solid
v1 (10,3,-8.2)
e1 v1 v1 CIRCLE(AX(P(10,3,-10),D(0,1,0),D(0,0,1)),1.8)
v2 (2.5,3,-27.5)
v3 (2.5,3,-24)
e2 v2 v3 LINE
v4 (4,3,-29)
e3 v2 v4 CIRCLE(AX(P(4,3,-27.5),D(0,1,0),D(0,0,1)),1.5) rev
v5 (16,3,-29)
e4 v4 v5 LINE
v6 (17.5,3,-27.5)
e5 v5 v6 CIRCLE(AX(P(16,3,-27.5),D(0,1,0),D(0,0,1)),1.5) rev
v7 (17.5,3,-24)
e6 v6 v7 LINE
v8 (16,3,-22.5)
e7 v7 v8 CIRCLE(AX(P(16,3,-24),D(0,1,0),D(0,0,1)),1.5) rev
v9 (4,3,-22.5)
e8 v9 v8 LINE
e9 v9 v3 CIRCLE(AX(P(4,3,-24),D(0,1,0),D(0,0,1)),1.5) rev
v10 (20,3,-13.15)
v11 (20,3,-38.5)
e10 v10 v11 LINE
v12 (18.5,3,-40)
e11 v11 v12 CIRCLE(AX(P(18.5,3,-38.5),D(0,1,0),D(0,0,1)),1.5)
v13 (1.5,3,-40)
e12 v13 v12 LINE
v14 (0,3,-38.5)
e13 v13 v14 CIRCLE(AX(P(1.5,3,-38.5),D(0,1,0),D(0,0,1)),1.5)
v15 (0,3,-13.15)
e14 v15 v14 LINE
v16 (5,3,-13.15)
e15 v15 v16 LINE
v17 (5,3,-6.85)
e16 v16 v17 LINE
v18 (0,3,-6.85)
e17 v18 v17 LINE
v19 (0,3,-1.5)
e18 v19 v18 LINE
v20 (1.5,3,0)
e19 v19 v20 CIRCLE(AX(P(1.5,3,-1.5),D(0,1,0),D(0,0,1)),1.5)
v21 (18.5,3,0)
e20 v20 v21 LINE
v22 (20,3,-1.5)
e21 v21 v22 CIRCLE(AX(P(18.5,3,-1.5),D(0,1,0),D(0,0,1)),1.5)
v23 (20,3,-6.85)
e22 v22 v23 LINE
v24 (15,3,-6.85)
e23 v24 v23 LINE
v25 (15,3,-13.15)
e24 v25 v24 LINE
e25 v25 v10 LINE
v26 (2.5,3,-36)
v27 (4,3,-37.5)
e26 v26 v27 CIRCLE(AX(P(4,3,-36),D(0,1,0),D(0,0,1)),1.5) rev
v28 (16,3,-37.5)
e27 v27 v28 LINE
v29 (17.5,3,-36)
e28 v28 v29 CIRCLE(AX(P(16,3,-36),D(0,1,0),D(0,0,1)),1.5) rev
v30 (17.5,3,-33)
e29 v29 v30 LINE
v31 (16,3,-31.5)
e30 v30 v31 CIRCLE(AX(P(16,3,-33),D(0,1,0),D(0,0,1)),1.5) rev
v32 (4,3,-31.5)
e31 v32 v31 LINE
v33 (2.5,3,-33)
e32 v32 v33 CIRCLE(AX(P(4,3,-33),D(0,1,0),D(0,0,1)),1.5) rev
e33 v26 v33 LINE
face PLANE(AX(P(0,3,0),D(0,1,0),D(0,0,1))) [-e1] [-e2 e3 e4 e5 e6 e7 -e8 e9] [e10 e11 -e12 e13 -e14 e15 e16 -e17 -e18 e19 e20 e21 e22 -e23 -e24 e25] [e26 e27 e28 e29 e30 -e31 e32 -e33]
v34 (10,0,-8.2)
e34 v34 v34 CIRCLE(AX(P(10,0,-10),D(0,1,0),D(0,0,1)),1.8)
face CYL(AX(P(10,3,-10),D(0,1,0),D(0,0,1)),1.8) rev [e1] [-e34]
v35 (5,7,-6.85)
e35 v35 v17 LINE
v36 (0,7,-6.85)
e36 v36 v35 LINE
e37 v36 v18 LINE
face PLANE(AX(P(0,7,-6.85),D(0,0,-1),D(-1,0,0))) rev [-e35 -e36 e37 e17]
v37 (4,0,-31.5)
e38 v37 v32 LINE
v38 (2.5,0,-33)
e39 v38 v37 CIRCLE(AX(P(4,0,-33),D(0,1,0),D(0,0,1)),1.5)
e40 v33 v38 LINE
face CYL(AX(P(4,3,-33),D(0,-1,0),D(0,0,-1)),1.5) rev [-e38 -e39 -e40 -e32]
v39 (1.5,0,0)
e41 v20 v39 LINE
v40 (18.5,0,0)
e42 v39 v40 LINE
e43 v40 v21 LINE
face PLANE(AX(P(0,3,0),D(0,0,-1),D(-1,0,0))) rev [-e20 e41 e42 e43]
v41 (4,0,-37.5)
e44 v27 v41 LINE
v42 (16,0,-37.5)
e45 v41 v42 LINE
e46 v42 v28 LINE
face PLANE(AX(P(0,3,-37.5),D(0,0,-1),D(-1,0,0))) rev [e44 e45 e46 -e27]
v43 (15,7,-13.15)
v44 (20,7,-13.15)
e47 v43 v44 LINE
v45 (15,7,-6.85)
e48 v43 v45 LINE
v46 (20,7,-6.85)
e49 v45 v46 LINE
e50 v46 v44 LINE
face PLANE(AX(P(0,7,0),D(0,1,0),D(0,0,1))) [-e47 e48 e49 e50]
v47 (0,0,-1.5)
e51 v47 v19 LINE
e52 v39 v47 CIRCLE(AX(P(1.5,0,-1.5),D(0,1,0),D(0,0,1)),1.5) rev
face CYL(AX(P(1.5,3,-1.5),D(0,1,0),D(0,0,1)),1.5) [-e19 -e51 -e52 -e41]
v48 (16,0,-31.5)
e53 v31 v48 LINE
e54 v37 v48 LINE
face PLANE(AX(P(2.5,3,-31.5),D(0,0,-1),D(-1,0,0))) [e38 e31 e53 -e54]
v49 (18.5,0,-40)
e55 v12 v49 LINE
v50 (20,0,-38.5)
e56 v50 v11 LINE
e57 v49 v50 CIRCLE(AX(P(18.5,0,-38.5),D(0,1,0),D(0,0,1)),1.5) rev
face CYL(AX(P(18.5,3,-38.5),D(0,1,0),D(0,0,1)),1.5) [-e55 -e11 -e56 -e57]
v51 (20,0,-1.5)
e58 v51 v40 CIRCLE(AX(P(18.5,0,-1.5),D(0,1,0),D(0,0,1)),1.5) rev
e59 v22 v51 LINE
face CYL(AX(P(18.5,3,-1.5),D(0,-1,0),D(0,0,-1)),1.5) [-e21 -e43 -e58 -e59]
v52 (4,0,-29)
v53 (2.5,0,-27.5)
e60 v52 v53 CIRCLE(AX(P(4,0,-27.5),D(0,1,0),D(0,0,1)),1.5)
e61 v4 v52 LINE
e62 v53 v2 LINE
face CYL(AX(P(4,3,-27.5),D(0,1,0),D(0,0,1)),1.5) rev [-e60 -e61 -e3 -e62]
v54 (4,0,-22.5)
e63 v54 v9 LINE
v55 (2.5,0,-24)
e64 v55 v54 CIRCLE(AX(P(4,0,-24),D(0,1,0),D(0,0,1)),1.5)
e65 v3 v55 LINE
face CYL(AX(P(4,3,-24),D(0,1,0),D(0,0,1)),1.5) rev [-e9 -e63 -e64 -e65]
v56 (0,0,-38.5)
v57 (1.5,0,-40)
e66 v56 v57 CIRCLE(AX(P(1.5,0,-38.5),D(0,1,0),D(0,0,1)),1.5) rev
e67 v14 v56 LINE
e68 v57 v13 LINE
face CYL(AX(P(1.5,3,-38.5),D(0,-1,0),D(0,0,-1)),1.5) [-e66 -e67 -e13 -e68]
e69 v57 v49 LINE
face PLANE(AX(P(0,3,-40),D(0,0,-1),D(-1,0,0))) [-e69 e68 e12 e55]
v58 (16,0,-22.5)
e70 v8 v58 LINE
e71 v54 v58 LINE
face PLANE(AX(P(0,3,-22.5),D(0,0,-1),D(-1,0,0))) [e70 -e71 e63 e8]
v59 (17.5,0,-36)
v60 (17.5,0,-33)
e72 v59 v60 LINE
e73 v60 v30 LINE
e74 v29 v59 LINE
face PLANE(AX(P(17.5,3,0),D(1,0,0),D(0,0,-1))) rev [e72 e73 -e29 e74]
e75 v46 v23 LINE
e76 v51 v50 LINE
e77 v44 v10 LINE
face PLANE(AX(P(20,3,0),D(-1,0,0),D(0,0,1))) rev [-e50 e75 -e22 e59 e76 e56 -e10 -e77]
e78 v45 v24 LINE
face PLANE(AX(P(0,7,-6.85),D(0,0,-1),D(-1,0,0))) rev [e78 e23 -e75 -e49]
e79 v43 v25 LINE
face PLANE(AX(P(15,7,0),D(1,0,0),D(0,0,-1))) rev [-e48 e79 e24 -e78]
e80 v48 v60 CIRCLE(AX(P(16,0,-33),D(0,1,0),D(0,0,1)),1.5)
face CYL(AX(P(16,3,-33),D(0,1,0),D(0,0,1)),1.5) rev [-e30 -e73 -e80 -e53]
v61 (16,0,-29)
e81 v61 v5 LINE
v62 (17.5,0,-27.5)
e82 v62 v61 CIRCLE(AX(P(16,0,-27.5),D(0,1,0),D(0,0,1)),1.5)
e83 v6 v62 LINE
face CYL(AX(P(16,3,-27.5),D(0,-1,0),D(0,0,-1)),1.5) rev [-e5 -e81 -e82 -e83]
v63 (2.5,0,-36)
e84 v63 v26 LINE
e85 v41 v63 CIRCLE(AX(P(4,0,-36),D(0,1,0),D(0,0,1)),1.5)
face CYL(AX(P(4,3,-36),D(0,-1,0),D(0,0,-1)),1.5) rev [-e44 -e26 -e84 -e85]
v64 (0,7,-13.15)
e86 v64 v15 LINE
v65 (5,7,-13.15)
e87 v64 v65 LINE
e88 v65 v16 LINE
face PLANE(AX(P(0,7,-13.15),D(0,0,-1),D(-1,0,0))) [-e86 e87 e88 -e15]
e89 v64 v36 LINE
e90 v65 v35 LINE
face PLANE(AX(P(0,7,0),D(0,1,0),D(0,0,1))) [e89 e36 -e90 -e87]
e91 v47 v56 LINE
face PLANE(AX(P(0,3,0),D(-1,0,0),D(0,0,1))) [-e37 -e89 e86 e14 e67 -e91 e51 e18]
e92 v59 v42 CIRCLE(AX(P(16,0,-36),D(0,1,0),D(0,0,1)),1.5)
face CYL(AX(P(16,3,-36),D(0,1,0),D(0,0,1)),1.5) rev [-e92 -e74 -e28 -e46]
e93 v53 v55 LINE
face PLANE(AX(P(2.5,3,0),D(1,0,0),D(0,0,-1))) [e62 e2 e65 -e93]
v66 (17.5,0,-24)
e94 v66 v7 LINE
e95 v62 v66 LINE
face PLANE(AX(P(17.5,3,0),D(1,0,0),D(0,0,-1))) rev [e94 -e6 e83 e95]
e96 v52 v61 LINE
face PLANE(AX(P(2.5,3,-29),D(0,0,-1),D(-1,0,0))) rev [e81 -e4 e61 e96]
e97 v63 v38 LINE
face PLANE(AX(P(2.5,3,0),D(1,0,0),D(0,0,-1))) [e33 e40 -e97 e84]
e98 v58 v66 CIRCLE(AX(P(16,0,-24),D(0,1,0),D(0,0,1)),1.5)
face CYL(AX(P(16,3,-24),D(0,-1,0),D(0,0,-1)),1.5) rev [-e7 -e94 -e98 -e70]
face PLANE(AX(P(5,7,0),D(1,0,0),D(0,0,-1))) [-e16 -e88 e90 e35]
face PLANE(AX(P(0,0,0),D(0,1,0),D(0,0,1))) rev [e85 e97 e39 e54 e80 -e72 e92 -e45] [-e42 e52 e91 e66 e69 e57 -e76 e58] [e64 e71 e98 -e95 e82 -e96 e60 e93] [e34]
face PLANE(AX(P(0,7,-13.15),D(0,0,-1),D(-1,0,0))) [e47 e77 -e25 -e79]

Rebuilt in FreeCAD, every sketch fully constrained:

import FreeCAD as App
import Part
import Sketcher

V = App.Vector
Q = App.Units.Quantity


def edges_at(feature, points):
    """Names of the edges that pass closest to the given points."""
    edges = feature.Shape.Edges
    near = lambda p: min(range(len(edges)), key=lambda i: edges[i].distToShape(Part.Vertex(*p))[0])
    return sorted({f"Edge{near(p) + 1}" for p in points})


def add_polygon(sketch, points):
    """Adds a closed chain of lines whose ends are joined by coincident constraints."""
    first, n = sketch.GeometryCount, len(points)
    for a, b in zip(points, points[1:] + points[:1]):
        sketch.addGeometry(Part.LineSegment(App.Vector(*a, 0), App.Vector(*b, 0)), False)
    for i in range(n):
        sketch.addConstraint(Sketcher.Constraint("Coincident", first + i, 2, first + (i + 1) % n, 1))

doc = App.newDocument("Part")
body = doc.addObject("PartDesign::Body", "Body")

sketch1 = body.newObject("Sketcher::SketchObject", "Sketch")
sketch1.AttachmentSupport = (doc.getObject("XZ_Plane"), [""])
sketch1.MapMode = "FlatFace"
add_polygon(sketch1, [(0, -40), (0, 0), (20, 0), (20, -40)])
add_polygon(sketch1, [(18, -22), (2, -22), (2, -29), (18, -29)])
add_polygon(sketch1, [(18, -38), (18, -32), (2, -32), (2, -38)])
sketch1.addConstraint([
    Sketcher.Constraint("Vertical", 0),
    Sketcher.Constraint("Horizontal", 1),
    Sketcher.Constraint("Vertical", 2),
    Sketcher.Constraint("Horizontal", 3),
    Sketcher.Constraint("Horizontal", 4),
    Sketcher.Constraint("Vertical", 5),
    Sketcher.Constraint("Horizontal", 6),
    Sketcher.Constraint("Vertical", 7),
    Sketcher.Constraint("Vertical", 8),
    Sketcher.Constraint("Horizontal", 9),
    Sketcher.Constraint("Vertical", 10),
    Sketcher.Constraint("Horizontal", 11),
    Sketcher.Constraint("Coincident", 0, 2, -1, 1),
    Sketcher.Constraint("Vertical", 7, 2, 8, 2),
    Sketcher.Constraint("Vertical", 5, 2, 9, 2),
    Sketcher.Constraint("DistanceX", 1, 1, 1, 2, Q("20 mm")),
    Sketcher.Constraint("DistanceX", 4, 2, 4, 1, Q("15 mm")),
    Sketcher.Constraint("DistanceY", 0, 1, 0, 2, Q("40 mm")),
    Sketcher.Constraint("DistanceY", 8, 1, 8, 2, Q("6 mm")),
    Sketcher.Constraint("DistanceY", 5, 2, 5, 1, Q("6.5 mm")),
    Sketcher.Constraint("DistanceY", 5, 2, -1, 1, Q("29 mm")),
    Sketcher.Constraint("DistanceY", 8, 2, 7, 2, Q("9 mm")),
    Sketcher.Constraint("DistanceX", -1, 1, 4, 2, Q("2.5 mm")),
])
pad1 = body.newObject("PartDesign::Pad", "Pad")
pad1.Profile = sketch1
pad1.Length = 3
pad1.Reversed = True

sketch2 = body.newObject("Sketcher::SketchObject", "Sketch001")
sketch2.AttachmentSupport = (doc.getObject("XZ_Plane"), [""])
sketch2.MapMode = "FlatFace"
sketch2.AttachmentOffset = App.Placement(V(0, 0, -3), App.Rotation())
add_polygon(sketch2, [(0, -13), (0, -7), (5, -7), (5, -13)])
add_polygon(sketch2, [(15, -13), (15, -7), (20, -7), (20, -13)])
sketch2.addConstraint([
    Sketcher.Constraint("Vertical", 0),
    Sketcher.Constraint("Horizontal", 1),
    Sketcher.Constraint("Vertical", 2),
    Sketcher.Constraint("Horizontal", 3),
    Sketcher.Constraint("Vertical", 4),
    Sketcher.Constraint("Horizontal", 5),
    Sketcher.Constraint("Vertical", 6),
    Sketcher.Constraint("Horizontal", 7),
    Sketcher.Constraint("PointOnObject", 0, 2, -2),
    Sketcher.Constraint("Horizontal", 1, 2, 4, 2),
    Sketcher.Constraint("Horizontal", 3, 2, 6, 2),
    Sketcher.Constraint("Equal", 3, 5),
    Sketcher.Constraint("DistanceX", 1, 1, 1, 2, Q("5 mm")),
    Sketcher.Constraint("DistanceY", 0, 1, 0, 2, Q("6.3 mm")),
    Sketcher.Constraint("DistanceX", -1, 1, 4, 2, Q("15 mm")),
    Sketcher.Constraint("DistanceY", 0, 2, -1, 1, Q("6.85 mm")),
])
pad2 = body.newObject("PartDesign::Pad", "Pad001")
pad2.Profile = sketch2
pad2.Length = 4
pad2.Reversed = True

sketch3 = body.newObject("Sketcher::SketchObject", "Sketch002")
sketch3.AttachmentSupport = (doc.getObject("XZ_Plane"), [""])
sketch3.MapMode = "FlatFace"
sketch3.AttachmentOffset = App.Placement(V(0, 0, -3), App.Rotation())
sketch3.addGeometry(Part.Circle(V(10, -10, 0), V(0, 0, 1), 1.8), False)
sketch3.addConstraint([
    Sketcher.Constraint("Diameter", 0, Q("3.6 mm")),
    Sketcher.Constraint("DistanceX", -1, 1, 0, 3, Q("10 mm")),
    Sketcher.Constraint("DistanceY", 0, 3, -1, 1, Q("10 mm")),
])
doc.recompute()
hole = body.newObject("PartDesign::Hole", "Hole")
hole.Profile = sketch3
hole.ThreadType = "None"
hole.Diameter = 3.6
hole.DepthType = "Dimension"
hole.Depth = 10
hole.DrillPoint = "Angled"
hole.DrillPointAngle = 118
hole.Reversed = True
doc.recompute()

fillet = body.newObject("PartDesign::Fillet", "Fillet")
fillet.Base = (hole, edges_at(hole, [
    (2.5, 1.5, -37.5),
    (2.5, 1.5, -22.5),
    (17.5, 1.5, -22.5),
    (17.5, 1.5, -37.5),
    (0, 1.5, 0),
    (0, 1.5, -40),
    (20, 1.5, -40),
    (20, 1.5, 0),
    (2.5, 1.5, -31.5),
    (2.5, 1.5, -29),
    (17.5, 1.5, -31.5),
    (17.5, 1.5, -29),
]))
fillet.Radius = 1.5

doc.recompute()
